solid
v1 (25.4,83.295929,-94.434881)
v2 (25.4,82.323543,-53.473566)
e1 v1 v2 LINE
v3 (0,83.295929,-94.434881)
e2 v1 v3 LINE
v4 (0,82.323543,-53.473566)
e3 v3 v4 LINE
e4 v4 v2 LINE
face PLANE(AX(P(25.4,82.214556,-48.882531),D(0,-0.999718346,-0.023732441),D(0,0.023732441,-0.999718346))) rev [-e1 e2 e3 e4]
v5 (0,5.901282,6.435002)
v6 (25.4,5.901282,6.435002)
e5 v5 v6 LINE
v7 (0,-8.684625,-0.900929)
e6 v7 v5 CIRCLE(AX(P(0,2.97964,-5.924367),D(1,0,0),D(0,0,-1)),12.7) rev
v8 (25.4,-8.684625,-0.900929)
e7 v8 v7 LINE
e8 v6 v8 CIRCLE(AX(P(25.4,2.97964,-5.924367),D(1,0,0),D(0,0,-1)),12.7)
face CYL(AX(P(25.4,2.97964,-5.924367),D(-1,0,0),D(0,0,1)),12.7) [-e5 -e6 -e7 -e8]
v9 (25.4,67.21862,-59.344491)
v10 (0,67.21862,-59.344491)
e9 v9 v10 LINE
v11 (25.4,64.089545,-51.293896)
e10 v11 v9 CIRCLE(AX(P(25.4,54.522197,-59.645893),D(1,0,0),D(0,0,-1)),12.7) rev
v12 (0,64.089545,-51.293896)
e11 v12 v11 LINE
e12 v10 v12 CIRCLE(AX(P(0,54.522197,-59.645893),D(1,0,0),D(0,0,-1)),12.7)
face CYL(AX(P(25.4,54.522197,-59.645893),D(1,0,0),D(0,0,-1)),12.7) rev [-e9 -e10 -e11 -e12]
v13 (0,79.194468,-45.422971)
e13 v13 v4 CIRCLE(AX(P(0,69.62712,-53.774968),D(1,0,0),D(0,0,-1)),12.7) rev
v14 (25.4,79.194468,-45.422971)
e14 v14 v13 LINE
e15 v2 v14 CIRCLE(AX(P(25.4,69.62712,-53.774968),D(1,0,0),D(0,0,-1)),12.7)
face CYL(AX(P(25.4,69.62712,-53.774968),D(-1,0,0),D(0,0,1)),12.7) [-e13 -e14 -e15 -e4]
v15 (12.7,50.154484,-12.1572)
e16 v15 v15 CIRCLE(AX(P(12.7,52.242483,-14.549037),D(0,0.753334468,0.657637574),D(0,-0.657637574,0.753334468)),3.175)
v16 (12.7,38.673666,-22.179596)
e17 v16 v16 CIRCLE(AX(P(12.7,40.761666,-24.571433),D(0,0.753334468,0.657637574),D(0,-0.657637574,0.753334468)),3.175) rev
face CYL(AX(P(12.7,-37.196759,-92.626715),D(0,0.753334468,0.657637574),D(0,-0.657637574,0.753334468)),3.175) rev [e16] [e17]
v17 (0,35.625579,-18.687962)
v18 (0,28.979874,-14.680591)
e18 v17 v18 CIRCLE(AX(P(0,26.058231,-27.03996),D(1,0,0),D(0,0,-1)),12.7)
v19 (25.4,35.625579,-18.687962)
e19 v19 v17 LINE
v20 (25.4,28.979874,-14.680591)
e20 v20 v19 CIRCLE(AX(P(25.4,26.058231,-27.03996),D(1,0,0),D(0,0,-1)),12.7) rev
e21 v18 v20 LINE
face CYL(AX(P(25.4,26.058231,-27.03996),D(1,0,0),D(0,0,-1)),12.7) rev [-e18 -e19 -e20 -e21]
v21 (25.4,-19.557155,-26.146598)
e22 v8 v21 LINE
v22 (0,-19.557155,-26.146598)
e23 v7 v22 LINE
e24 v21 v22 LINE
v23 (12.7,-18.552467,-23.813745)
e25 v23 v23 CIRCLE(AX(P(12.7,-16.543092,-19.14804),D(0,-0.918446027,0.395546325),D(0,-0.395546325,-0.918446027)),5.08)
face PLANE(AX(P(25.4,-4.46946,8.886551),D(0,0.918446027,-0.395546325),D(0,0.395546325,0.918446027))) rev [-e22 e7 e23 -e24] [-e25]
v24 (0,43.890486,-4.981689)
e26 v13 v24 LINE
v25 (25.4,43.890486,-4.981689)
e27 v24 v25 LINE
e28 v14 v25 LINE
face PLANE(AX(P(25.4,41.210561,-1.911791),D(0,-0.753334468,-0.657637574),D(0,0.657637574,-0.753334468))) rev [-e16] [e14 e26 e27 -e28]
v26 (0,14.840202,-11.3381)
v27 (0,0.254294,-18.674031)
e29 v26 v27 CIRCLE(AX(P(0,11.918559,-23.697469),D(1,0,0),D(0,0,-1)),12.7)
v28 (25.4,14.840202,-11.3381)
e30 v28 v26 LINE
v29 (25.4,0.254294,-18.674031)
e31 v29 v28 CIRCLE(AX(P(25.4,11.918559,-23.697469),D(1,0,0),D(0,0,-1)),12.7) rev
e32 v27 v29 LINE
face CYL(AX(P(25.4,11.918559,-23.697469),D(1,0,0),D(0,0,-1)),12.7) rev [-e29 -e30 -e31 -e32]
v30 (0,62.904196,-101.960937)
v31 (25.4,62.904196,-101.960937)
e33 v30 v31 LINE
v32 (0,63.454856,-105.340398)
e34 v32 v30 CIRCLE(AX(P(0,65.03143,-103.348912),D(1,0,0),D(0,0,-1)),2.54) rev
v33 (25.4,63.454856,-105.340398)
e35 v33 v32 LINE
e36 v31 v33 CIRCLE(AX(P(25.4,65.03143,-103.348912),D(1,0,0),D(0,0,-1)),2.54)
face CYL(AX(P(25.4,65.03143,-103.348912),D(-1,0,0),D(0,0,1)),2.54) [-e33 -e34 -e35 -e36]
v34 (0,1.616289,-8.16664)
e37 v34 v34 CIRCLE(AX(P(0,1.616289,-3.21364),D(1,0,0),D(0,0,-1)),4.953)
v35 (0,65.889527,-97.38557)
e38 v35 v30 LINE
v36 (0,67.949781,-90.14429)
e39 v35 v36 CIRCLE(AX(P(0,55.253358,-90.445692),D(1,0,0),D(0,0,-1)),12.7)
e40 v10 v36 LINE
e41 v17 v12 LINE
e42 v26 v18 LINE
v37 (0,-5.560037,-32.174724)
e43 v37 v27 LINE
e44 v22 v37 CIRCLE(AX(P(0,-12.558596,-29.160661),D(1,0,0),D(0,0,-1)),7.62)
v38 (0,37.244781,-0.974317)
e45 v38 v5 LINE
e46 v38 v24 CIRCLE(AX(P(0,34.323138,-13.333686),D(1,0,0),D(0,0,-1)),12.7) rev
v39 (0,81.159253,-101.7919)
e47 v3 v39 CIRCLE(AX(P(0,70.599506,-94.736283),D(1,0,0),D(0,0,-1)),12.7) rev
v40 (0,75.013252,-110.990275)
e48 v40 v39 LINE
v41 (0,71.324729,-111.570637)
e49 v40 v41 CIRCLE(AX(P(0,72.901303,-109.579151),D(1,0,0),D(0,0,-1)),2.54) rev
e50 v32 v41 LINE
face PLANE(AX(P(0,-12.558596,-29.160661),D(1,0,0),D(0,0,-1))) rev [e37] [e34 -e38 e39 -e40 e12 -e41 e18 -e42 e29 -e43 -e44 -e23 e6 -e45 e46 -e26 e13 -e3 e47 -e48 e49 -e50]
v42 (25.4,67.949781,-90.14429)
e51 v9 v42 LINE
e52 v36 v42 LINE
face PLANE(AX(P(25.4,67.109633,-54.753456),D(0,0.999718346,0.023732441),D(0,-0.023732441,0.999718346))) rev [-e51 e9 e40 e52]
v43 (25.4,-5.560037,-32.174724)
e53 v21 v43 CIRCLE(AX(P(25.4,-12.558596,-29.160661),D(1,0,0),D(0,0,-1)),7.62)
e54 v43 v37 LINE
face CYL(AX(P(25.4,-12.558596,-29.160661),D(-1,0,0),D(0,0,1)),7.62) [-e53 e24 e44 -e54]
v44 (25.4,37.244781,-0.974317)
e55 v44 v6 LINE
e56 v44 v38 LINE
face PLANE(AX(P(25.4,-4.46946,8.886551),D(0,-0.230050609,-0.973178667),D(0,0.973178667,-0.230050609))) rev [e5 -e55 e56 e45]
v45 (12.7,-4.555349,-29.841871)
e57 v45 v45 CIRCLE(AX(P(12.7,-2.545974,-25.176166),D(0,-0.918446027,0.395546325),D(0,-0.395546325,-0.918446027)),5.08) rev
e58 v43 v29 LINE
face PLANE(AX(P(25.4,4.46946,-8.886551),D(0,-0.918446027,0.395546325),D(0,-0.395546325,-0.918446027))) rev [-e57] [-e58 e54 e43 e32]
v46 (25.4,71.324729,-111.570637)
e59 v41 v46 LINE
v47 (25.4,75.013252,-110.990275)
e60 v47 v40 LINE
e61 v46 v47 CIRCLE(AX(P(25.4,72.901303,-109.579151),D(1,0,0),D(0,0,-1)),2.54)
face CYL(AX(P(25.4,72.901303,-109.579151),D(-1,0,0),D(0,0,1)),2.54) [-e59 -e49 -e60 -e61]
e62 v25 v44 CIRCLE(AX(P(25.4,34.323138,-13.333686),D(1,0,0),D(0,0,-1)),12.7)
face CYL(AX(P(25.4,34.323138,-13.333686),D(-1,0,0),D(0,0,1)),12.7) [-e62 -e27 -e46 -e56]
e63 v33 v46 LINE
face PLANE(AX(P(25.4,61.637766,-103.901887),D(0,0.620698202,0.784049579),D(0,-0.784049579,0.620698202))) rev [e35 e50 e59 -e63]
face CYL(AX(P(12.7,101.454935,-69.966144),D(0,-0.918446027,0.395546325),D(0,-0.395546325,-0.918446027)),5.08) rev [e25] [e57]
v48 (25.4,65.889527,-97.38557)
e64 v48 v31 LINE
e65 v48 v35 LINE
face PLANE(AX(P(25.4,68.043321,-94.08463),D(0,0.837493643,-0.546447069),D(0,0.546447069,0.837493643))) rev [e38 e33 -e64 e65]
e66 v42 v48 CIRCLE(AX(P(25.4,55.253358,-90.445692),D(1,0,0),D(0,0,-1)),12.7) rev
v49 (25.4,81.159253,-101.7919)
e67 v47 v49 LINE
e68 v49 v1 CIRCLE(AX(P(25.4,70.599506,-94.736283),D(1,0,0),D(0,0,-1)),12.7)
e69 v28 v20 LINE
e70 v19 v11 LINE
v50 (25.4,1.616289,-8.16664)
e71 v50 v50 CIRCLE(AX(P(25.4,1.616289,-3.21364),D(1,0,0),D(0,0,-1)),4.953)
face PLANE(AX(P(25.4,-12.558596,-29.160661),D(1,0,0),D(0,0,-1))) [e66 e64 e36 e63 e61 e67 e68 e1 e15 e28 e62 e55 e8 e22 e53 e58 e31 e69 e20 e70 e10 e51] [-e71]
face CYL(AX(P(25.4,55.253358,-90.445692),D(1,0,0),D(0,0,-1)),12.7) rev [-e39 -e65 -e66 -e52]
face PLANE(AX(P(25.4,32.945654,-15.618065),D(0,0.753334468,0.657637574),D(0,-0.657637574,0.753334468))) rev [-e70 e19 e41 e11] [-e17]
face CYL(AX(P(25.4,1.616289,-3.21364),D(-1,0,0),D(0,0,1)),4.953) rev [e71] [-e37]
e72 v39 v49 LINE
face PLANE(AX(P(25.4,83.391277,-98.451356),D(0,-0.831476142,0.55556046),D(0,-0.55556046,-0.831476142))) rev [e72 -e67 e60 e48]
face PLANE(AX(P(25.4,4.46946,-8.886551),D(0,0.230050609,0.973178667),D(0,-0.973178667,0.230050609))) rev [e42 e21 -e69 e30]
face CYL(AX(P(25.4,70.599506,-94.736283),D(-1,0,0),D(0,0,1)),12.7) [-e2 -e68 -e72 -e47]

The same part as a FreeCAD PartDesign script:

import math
import FreeCAD as App
import Part
import Sketcher
from FreeCAD import Vector
Q = App.Units.Quantity


def edges_at(feature, points):
    """Names of the edges that pass closest to the given points."""
    edges = feature.Shape.Edges
    near = lambda p: min(range(len(edges)), key=lambda i: edges[i].distToShape(Part.Vertex(*p))[0])
    return sorted({f"Edge{near(p) + 1}" for p in points})

doc = App.newDocument("Part")
params = doc.addObject("Spreadsheet::Sheet", "Params")
for row, (alias, value) in enumerate([
    ("sketch1_radius", "0.3 in"),
    ("sketch1_diameter", "0.39 in"),
    ("pad1_length", "1 in"),
    ("fillet_radius", "0.5 in"),
    ("fillet2_radius", "0.1 in"),
    ("sketch2_diameter", "0.4 in"),
    ("sketch3_diameter", "0.25 in"),
], start=1):
    params.set(f"A{row}", alias)
    params.set(f"B{row}", "=" + value)
    params.setAlias(f"B{row}", alias)

body = doc.addObject("PartDesign::Body", "Body")

# Sketch on YZ plane
sketch1 = body.newObject("Sketcher::SketchObject", "Sketch")
sketch1.AttachmentSupport = (doc.getObject("YZ_Plane"), [""])
sketch1.MapMode = "FlatFace"
sketch1.addGeometry([
    Part.LineSegment(Vector(61.6, -103.9, 0), Vector(73.5, -113.3, 0)),  # 0
    Part.LineSegment(Vector(73.5, -113.3, 0), Vector(83.4, -98.5, 0)),  # 1
    Part.LineSegment(Vector(83.4, -98.5, 0), Vector(82.2, -48.9, 0)),  # 2
    Part.LineSegment(Vector(82.2, -48.9, 0), Vector(41.2, -1.9, 0)),  # 3
    Part.LineSegment(Vector(41.2, -1.9, 0), Vector(-4.5, 8.9, 0)),  # 4
    Part.LineSegment(Vector(-4.5, 8.9, 0), Vector(-19.6, -26.1, 0)),  # 5
    Part.ArcOfCircle(Part.Circle(Vector(-12.6, -29.2, 0), Vector(0, 0, 1), 7.6), math.radians(157), math.radians(337)),  # 6
    Part.LineSegment(Vector(-5.6, -32.2, 0), Vector(4.5, -8.9, 0)),  # 7
    Part.LineSegment(Vector(4.5, -8.9, 0), Vector(32.9, -15.6, 0)),  # 8
    Part.LineSegment(Vector(32.9, -15.6, 0), Vector(67.1, -54.8, 0)),  # 9
    Part.LineSegment(Vector(67.1, -54.8, 0), Vector(68, -94.1, 0)),  # 10
    Part.LineSegment(Vector(68, -94.1, 0), Vector(61.6, -103.9, 0)),  # 11
    Part.Circle(Vector(1.6, -3.2, 0), Vector(0, 0, 1), 5),  # 12
], False)
sketch1.addConstraint([
    Sketcher.Constraint("Coincident", 0, 2, 1, 1),
    Sketcher.Constraint("Coincident", 1, 2, 2, 1),
    Sketcher.Constraint("Coincident", 2, 2, 3, 1),
    Sketcher.Constraint("Coincident", 3, 2, 4, 1),
    Sketcher.Constraint("Coincident", 4, 2, 5, 1),
    Sketcher.Constraint("Tangent", 5, 2, 6, 1),
    Sketcher.Constraint("Tangent", 6, 2, 7, 1),
    Sketcher.Constraint("Coincident", 7, 2, 8, 1),
    Sketcher.Constraint("Coincident", 8, 2, 9, 1),
    Sketcher.Constraint("Coincident", 9, 2, 10, 1),
    Sketcher.Constraint("Coincident", 10, 2, 11, 1),
    Sketcher.Constraint("Coincident", 11, 2, 0, 1),
    Sketcher.Constraint("Symmetric", 4, 2, 7, 2, -1, 1),
    Sketcher.Constraint("Parallel", 5, 7),
    Sketcher.Constraint("Parallel", 4, 8),
    Sketcher.Constraint("Parallel", 3, 9),
    Sketcher.Constraint("Parallel", 2, 10),
    Sketcher.Constraint("Radius", 6, Q("0.3 in")),
    Sketcher.Constraint("Diameter", 12, Q("0.39 in")),
    Sketcher.Constraint("DistanceX", 5, 2, 12, 3, Q("0.8336001 in")),
    Sketcher.Constraint("DistanceY", 6, 2, 12, 3, Q("1.1402002 in")),
    Sketcher.Constraint("DistanceY", 5, 2, -1, 1, Q("26.146598 mm")),
    Sketcher.Constraint("DistanceX", 0, 2, 2, 2, Q("8.731001 mm")),
    Sketcher.Constraint("DistanceY", 1, 2, 9, 2, Q("43.6979 mm")),
    Sketcher.Constraint("DistanceY", 10, 2, 2, 2, Q("45.2021 mm")),
    Sketcher.Constraint("DistanceY", 0, 2, 11, 2, Q("9.3778 mm")),
    Sketcher.Constraint("Distance", 0, Q("15.108469 mm")),
    Sketcher.Constraint("Distance", 1, Q("17.833741 mm")),
    Sketcher.Constraint("Distance", 2, Q("49.582791 mm")),
    Sketcher.Constraint("Distance", 5, Q("38.143939 mm")),
    Sketcher.Constraint("Distance", 7, Q("25.356061 mm")),
    Sketcher.Constraint("DistanceY", 2, 2, -1, 1, Q("48.882531 mm")),
    Sketcher.Constraint("DistanceX", -1, 1, 3, 2, Q("41.210561 mm")),
    Sketcher.Constraint("DistanceY", 3, 2, -1, 1, Q("1.911791 mm")),
    Sketcher.Constraint("DistanceX", -1, 1, 10, 2, Q("68.043321 mm")),
    Sketcher.Constraint("DistanceX", 6, 3, 0, 2, Q("86.042151 mm")),
    Sketcher.Constraint("DistanceX", 0, 2, 1, 2, Q("9.907721 mm")),
])
sketch1.setExpression("Constraints[17]", "Params.sketch1_radius")
sketch1.setExpression("Constraints[18]", "Params.sketch1_diameter")
pad1 = body.newObject("PartDesign::Pad", "Pad")
pad1.Profile = sketch1
pad1.setExpression("Length", "Params.pad1_length")
doc.recompute()

fillet = body.newObject("PartDesign::Fillet", "Fillet")
fillet.Base = (pad1, edges_at(pad1, [
    (12.7, 68.043, -94.085),
    (12.7, 67.11, -54.753),
    (12.7, 32.946, -15.618),
    (12.7, 4.469, -8.887),
    (12.7, -4.469, 8.887),
    (12.7, 41.211, -1.912),
    (12.7, 82.215, -48.883),
    (12.7, 83.391, -98.451),
]))
fillet.setExpression("Radius", "Params.fillet_radius")
doc.recompute()

fillet2 = body.newObject("PartDesign::Fillet", "Fillet001")
fillet2.Base = (fillet, edges_at(fillet, [(12.7, 73.484, -113.28), (12.7, 61.638, -103.902)]))
fillet2.setExpression("Radius", "Params.fillet2_radius")

# Sketch on an angled plane
sketch2 = body.newObject("Sketcher::SketchObject", "Sketch001")
sketch2.Placement = App.Placement(Vector(0, -6.998559, 3.014063), App.Rotation(Vector(1, 0, 0), Vector(0, 0.395546325, 0.918446027), Vector(0, -0.918446027, 0.395546325), "ZXY"))
sketch2.addGeometry(Part.Circle(Vector(13, -24, 0), Vector(0, 0, 1), 5), False)
sketch2.addConstraint([
    Sketcher.Constraint("Diameter", 0, Q("0.4 in")),
    Sketcher.Constraint("DistanceX", -1, 1, 0, 3, Q("0.5 in")),
    Sketcher.Constraint("DistanceY", 0, 3, -1, 1, Q("0.95 in")),
])
sketch2.setExpression("Constraints[0]", "Params.sketch2_diameter")
pocket1 = body.newObject("PartDesign::Pocket", "Pocket")
pocket1.Profile = sketch2
pocket1.Type = "UpToFirst"

# Sketch on an angled plane
sketch3 = body.newObject("Sketcher::SketchObject", "Sketch002")
sketch3.Placement = App.Placement(Vector(0, 22.44038, 19.589754), App.Rotation(Vector(1, 0, 0), Vector(0, 0.657637574, -0.753334468), Vector(0, 0.753334468, 0.657637574), "ZXY"))
sketch3.addGeometry(Part.Circle(Vector(12.7, 45.3, 0), Vector(0, 0, 1), 3.2), False)
sketch3.addConstraint([
    Sketcher.Constraint("Diameter", 0, Q("0.25 in")),
    Sketcher.Constraint("DistanceX", -1, 1, 0, 3, Q("0.5 in")),
    Sketcher.Constraint("DistanceY", -1, 1, 0, 3, Q("45.316911 mm")),
])
sketch3.setExpression("Constraints[0]", "Params.sketch3_diameter")
pocket2 = body.newObject("PartDesign::Pocket", "Pocket001")
pocket2.Profile = sketch3
pocket2.Type = "UpToFirst"

doc.recompute()
